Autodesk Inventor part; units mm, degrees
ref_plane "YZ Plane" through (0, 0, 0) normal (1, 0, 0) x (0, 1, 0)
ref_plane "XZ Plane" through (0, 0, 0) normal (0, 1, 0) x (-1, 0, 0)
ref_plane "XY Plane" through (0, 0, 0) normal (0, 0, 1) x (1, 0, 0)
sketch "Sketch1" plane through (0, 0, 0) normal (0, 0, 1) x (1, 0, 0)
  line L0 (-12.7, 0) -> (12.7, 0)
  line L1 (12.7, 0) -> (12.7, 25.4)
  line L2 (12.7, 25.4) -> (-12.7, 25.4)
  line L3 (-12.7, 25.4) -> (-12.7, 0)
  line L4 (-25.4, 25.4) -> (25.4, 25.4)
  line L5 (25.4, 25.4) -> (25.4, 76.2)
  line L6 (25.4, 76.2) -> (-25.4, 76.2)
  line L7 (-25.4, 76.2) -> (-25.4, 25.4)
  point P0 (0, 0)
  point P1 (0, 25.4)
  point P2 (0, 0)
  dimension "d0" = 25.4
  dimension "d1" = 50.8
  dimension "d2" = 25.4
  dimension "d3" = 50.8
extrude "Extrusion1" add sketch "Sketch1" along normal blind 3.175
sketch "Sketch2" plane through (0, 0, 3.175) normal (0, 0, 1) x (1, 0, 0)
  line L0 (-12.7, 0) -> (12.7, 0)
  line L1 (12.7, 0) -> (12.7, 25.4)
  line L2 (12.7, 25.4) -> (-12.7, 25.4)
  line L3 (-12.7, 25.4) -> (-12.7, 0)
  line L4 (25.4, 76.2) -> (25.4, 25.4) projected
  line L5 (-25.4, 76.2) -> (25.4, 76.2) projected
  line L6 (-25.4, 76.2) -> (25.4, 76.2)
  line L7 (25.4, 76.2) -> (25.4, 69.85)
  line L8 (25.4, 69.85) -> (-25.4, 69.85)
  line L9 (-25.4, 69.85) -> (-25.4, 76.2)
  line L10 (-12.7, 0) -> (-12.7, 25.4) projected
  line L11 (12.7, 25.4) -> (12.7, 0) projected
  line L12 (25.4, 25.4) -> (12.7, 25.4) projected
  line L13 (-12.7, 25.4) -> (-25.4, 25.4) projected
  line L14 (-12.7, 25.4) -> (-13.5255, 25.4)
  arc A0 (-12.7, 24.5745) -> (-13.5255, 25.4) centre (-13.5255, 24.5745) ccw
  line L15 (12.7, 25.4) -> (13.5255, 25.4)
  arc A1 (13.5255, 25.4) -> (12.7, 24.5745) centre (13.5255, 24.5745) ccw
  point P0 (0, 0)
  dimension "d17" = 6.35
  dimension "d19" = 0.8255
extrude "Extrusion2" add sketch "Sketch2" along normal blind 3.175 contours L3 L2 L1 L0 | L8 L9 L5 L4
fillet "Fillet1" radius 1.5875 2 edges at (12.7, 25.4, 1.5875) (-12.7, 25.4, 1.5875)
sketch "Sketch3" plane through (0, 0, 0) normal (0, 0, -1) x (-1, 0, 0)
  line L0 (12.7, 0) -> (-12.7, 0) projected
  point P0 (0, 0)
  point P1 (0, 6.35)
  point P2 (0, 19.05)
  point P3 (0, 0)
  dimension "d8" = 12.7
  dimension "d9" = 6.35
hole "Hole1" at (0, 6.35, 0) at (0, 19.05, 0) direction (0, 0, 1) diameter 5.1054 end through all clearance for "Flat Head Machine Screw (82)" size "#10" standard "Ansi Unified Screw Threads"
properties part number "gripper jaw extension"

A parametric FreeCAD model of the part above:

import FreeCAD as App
import Part
import Sketcher
from FreeCAD import Vector
Q = App.Units.Quantity


def edges_at(feature, points):
    """Names of the edges that pass closest to the given points."""
    edges = feature.Shape.Edges
    near = lambda p: min(range(len(edges)), key=lambda i: edges[i].distToShape(Part.Vertex(*p))[0])
    return sorted({f"Edge{near(p) + 1}" for p in points})

doc = App.newDocument("Part")
body = doc.addObject("PartDesign::Body", "Body")

# Sketch on XY plane
sketch1 = body.newObject("Sketcher::SketchObject", "Sketch")
sketch1.AttachmentSupport = (doc.getObject("XY_Plane"), [""])
sketch1.MapMode = "FlatFace"
sketch1.addGeometry([
    Part.LineSegment(Vector(-13, 25, 0), Vector(-13, 0, 0)),  # 0
    Part.LineSegment(Vector(-13, 0, 0), Vector(13, 0, 0)),  # 1
    Part.LineSegment(Vector(13, 0, 0), Vector(13, 25, 0)),  # 2
    Part.LineSegment(Vector(13, 25, 0), Vector(25, 25, 0)),  # 3
    Part.LineSegment(Vector(25, 25, 0), Vector(25, 76, 0)),  # 4
    Part.LineSegment(Vector(25, 76, 0), Vector(-25, 76, 0)),  # 5
    Part.LineSegment(Vector(-25, 76, 0), Vector(-25, 25, 0)),  # 6
    Part.LineSegment(Vector(-25, 25, 0), Vector(-13, 25, 0)),  # 7
], False)
sketch1.addConstraint([
    Sketcher.Constraint("Coincident", 0, 2, 1, 1),
    Sketcher.Constraint("Coincident", 1, 2, 2, 1),
    Sketcher.Constraint("Coincident", 2, 2, 3, 1),
    Sketcher.Constraint("Coincident", 3, 2, 4, 1),
    Sketcher.Constraint("Coincident", 4, 2, 5, 1),
    Sketcher.Constraint("Coincident", 5, 2, 6, 1),
    Sketcher.Constraint("Coincident", 6, 2, 7, 1),
    Sketcher.Constraint("Coincident", 7, 2, 0, 1),
    Sketcher.Constraint("Vertical", 0),
    Sketcher.Constraint("Horizontal", 1),
    Sketcher.Constraint("Vertical", 2),
    Sketcher.Constraint("Horizontal", 3),
    Sketcher.Constraint("Vertical", 4),
    Sketcher.Constraint("Horizontal", 5),
    Sketcher.Constraint("Vertical", 6),
    Sketcher.Constraint("Horizontal", 7),
    Sketcher.Constraint("Symmetric", 0, 2, 1, 2, -1, 1),
    Sketcher.Constraint("Symmetric", 3, 2, 6, 2, -2),
    Sketcher.Constraint("Equal", 1, 0),
    Sketcher.Constraint("Equal", 5, 4),
    Sketcher.Constraint("DistanceX", 1, 1, 1, 2, Q("1 in")),
    Sketcher.Constraint("DistanceX", 5, 2, 5, 1, Q("2 in")),
])
pad1 = body.newObject("PartDesign::Pad", "Pad")
pad1.Profile = sketch1
pad1.Length = Q("0.125 in")

# Sketch on XY plane
sketch2 = body.newObject("Sketcher::SketchObject", "Sketch001")
sketch2.AttachmentSupport = (doc.getObject("XY_Plane"), [""])
sketch2.MapMode = "FlatFace"
sketch2.AttachmentOffset = App.Placement(Vector(0, 0, 0.125 * 25.4), App.Rotation())
sketch2.addGeometry([
    Part.LineSegment(Vector(-13, 25, 0), Vector(-13, 0, 0)),  # 0
    Part.LineSegment(Vector(-13, 0, 0), Vector(13, 0, 0)),  # 1
    Part.LineSegment(Vector(13, 0, 0), Vector(13, 25, 0)),  # 2
    Part.LineSegment(Vector(13, 25, 0), Vector(-13, 25, 0)),  # 3
    Part.LineSegment(Vector(-25, 70, 0), Vector(25, 70, 0)),  # 4
    Part.LineSegment(Vector(25, 70, 0), Vector(25, 76, 0)),  # 5
    Part.LineSegment(Vector(25, 76, 0), Vector(-25, 76, 0)),  # 6
    Part.LineSegment(Vector(-25, 76, 0), Vector(-25, 70, 0)),  # 7
], False)
sketch2.addConstraint([
    Sketcher.Constraint("Coincident", 0, 2, 1, 1),
    Sketcher.Constraint("Coincident", 1, 2, 2, 1),
    Sketcher.Constraint("Coincident", 2, 2, 3, 1),
    Sketcher.Constraint("Coincident", 3, 2, 0, 1),
    Sketcher.Constraint("Coincident", 4, 2, 5, 1),
    Sketcher.Constraint("Coincident", 5, 2, 6, 1),
    Sketcher.Constraint("Coincident", 6, 2, 7, 1),
    Sketcher.Constraint("Coincident", 7, 2, 4, 1),
    Sketcher.Constraint("Vertical", 0),
    Sketcher.Constraint("Horizontal", 1),
    Sketcher.Constraint("Vertical", 2),
    Sketcher.Constraint("Horizontal", 3),
    Sketcher.Constraint("Horizontal", 4),
    Sketcher.Constraint("Vertical", 5),
    Sketcher.Constraint("Horizontal", 6),
    Sketcher.Constraint("Vertical", 7),
    Sketcher.Constraint("Symmetric", 0, 2, 1, 2, -1, 1),
    Sketcher.Constraint("Equal", 3, 0),
    Sketcher.Constraint("DistanceY", 5, 1, 5, 2, Q("0.25 in")),
    Sketcher.Constraint("DistanceX", 1, 1, 1, 2, Q("1 in")),
    Sketcher.Constraint("DistanceX", 4, 1, 4, 2, Q("2 in")),
    Sketcher.Constraint("DistanceX", -1, 1, 4, 2, Q("1 in")),
    Sketcher.Constraint("DistanceY", -1, 1, 5, 2, Q("3 in")),
])
pad2 = body.newObject("PartDesign::Pad", "Pad001")
pad2.Profile = sketch2
pad2.Length = Q("0.125 in")
doc.recompute()

fillet = body.newObject("PartDesign::Fillet", "Fillet")
fillet.Base = (pad2, edges_at(pad2, [(12.7, 25.4, 1.587), (-12.7, 25.4, 1.587)]))
fillet.Radius = Q("0.0625 in")

# Sketch on XY plane
sketch3 = body.newObject("Sketcher::SketchObject", "Sketch002")
sketch3.AttachmentSupport = (doc.getObject("XY_Plane"), [""])
sketch3.MapMode = "FlatFace"
sketch3.addGeometry([
    Part.Circle(Vector(0, 6.3, 0), Vector(0, 0, 1), 2.6),
    Part.Circle(Vector(0, 19.1, 0), Vector(0, 0, 1), 2.6),
], False)
sketch3.addConstraint([
    Sketcher.Constraint("Equal", 0, 1),
    Sketcher.Constraint("PointOnObject", 0, 3, -2),
    Sketcher.Constraint("PointOnObject", 1, 3, -2),
    Sketcher.Constraint("Diameter", 0, Q("0.201 in")),
    Sketcher.Constraint("DistanceY", 0, 3, 1, 3, Q("0.5 in")),
    Sketcher.Constraint("DistanceY", -1, 1, 0, 3, Q("0.25 in")),
])
doc.recompute()
hole = body.newObject("PartDesign::Hole", "Hole")
hole.Profile = sketch3
hole.ThreadType = "None"
hole.Diameter = Q("0.201 in")
hole.DepthType = "ThroughAll"
hole.Reversed = True

doc.recompute()
